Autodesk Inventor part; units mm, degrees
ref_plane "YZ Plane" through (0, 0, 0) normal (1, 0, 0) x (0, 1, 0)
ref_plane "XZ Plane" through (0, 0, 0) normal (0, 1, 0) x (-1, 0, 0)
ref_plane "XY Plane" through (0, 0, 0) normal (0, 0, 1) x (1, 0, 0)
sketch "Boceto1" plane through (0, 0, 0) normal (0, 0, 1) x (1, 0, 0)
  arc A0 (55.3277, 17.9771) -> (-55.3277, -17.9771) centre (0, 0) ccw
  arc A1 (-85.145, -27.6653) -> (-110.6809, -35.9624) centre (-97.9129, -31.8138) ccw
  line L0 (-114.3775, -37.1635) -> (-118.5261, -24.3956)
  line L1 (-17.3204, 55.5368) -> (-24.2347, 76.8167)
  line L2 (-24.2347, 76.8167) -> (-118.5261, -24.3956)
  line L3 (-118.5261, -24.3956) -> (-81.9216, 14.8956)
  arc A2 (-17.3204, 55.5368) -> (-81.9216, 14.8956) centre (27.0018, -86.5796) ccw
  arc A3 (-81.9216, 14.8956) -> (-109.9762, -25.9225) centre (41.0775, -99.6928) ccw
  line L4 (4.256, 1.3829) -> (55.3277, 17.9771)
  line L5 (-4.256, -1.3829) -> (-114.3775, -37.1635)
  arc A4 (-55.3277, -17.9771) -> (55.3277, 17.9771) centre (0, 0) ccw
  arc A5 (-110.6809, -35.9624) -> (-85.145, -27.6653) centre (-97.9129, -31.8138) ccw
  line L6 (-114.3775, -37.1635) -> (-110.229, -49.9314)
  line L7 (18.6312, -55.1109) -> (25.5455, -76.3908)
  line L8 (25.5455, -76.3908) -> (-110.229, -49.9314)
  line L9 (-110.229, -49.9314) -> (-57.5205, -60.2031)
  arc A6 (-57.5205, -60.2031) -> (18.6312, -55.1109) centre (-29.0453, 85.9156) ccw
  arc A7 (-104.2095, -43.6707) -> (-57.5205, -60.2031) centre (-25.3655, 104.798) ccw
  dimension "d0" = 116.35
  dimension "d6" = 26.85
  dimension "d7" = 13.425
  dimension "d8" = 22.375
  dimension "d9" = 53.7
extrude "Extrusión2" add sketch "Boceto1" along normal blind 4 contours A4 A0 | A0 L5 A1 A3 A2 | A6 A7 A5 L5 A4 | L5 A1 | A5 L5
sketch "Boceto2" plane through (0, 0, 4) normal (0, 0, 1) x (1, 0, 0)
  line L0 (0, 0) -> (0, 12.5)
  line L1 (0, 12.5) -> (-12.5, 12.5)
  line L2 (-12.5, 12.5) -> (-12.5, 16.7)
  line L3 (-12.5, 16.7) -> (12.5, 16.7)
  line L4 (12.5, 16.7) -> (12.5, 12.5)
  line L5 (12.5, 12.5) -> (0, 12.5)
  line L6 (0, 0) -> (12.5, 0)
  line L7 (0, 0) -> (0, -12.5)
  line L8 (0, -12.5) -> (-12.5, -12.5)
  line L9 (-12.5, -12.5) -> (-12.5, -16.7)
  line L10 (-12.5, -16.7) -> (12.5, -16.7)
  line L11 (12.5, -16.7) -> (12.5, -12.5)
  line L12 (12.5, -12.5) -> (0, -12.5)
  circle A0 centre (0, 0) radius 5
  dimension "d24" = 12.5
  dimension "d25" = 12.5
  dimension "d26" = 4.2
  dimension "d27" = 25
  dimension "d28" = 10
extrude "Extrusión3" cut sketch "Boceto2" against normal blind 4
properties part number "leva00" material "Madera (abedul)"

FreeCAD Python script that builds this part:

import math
import FreeCAD as App
import Part
import Sketcher
from FreeCAD import Vector
Q = App.Units.Quantity

doc = App.newDocument("Part")
body = doc.addObject("PartDesign::Body", "Body")

sketch1 = doc.addObject("Sketcher::SketchObject", "Sketch")
body.addObject(sketch1)
sketch1.AttachmentSupport = (doc.XY_Plane, [""])
sketch1.MapMode = "FlatFace"
sketch1.addGeometry(Part.ArcOfCircle(Part.Circle(Vector(0, 0, 0), Vector(0, 0, 1), 58), math.radians(-71), math.radians(107)), False)
sketch1.addGeometry(Part.ArcOfCircle(Part.Circle(Vector(27, -87, 0), Vector(0, 0, 1), 149), math.radians(107), math.radians(137)), False)
sketch1.addGeometry(Part.ArcOfCircle(Part.Circle(Vector(41, -100, 0), Vector(0, 0, 1), 168), math.radians(137.03), math.radians(153.97)), False)
sketch1.addGeometry(Part.ArcOfCircle(Part.Circle(Vector(-98, -32, 0), Vector(0, 0, 1), 13), math.radians(154), math.radians(198)), False)
sketch1.addGeometry(Part.ArcOfCircle(Part.Circle(Vector(-98, -32, 0), Vector(0, 0, 1), 13), math.radians(-162), math.radians(-118)), False)
sketch1.addGeometry(Part.ArcOfCircle(Part.Circle(Vector(-25, 105, 0), Vector(0, 0, 1), 168), math.radians(-117.97), math.radians(-101.03)), False)
sketch1.addGeometry(Part.ArcOfCircle(Part.Circle(Vector(-29, 86, 0), Vector(0, 0, 1), 149), math.radians(-101), math.radians(-71)), False)
sketch1.addConstraint(Sketcher.Constraint("Tangent", 0, 2, 1, 1))
sketch1.addConstraint(Sketcher.Constraint("Tangent", 1, 2, 2, 1))
sketch1.addConstraint(Sketcher.Constraint("Tangent", 2, 2, 3, 1))
sketch1.addConstraint(Sketcher.Constraint("Tangent", 3, 2, 4, 1))
sketch1.addConstraint(Sketcher.Constraint("Tangent", 4, 2, 5, 1))
sketch1.addConstraint(Sketcher.Constraint("Tangent", 5, 2, 6, 1))
sketch1.addConstraint(Sketcher.Constraint("Tangent", 6, 2, 0, 1))
sketch1.addConstraint(Sketcher.Constraint("Coincident", 0, 3, -1, 1))
sketch1.addConstraint(Sketcher.Constraint("Equal", 3, 4))
sketch1.addConstraint(Sketcher.Constraint("Equal", 1, 6))
sketch1.addConstraint(Sketcher.Constraint("Radius", 0, Q("58.175 mm")))
sketch1.addConstraint(Sketcher.Constraint("Radius", 3, Q("13.425 mm")))
sketch1.addConstraint(Sketcher.Constraint("Radius", 2, Q("168.105 mm")))
sketch1.addConstraint(Sketcher.Constraint("Radius", 1, Q("148.8675 mm")))
sketch1.addConstraint(Sketcher.Constraint("Radius", 5, Q("168.1018 mm")))
sketch1.addConstraint(Sketcher.Constraint("DistanceY", 1, 2, 6, 3, Q("71.02 mm")))
sketch1.addConstraint(Sketcher.Constraint("DistanceX", 3, 3, -1, 1, Q("97.913 mm")))
sketch1.addConstraint(Sketcher.Constraint("DistanceY", -1, 1, 5, 3, Q("104.795 mm")))
sketch1.addConstraint(Sketcher.Constraint("DistanceY", 5, 2, -1, 1, Q("60.203 mm")))
sketch1.addConstraint(Sketcher.Constraint("DistanceX", 3, 2, 3, 3, Q("12.768 mm")))
pad1 = doc.addObject("PartDesign::Pad", "Pad")
body.addObject(pad1)
pad1.Profile = sketch1
pad1.Length = 4

sketch2 = doc.addObject("Sketcher::SketchObject", "Sketch001")
body.addObject(sketch2)
sketch2.AttachmentSupport = (doc.XY_Plane, [""])
sketch2.MapMode = "FlatFace"
sketch2.AttachmentOffset = App.Placement(Vector(0, 0, 4), App.Rotation())
sketch2.addGeometry(Part.Circle(Vector(0, 0, 0), Vector(0, 0, 1), 5), False)
sketch2.addGeometry(Part.LineSegment(Vector(-12.5, 12.5, 0), Vector(12.5, 12.5, 0)), False)
sketch2.addGeometry(Part.LineSegment(Vector(12.5, 12.5, 0), Vector(12.5, 16.7, 0)), False)
sketch2.addGeometry(Part.LineSegment(Vector(12.5, 16.7, 0), Vector(-12.5, 16.7, 0)), False)
sketch2.addGeometry(Part.LineSegment(Vector(-12.5, 16.7, 0), Vector(-12.5, 12.5, 0)), False)
sketch2.addGeometry(Part.LineSegment(Vector(12.5, -12.5, 0), Vector(-12.5, -12.5, 0)), False)
sketch2.addGeometry(Part.LineSegment(Vector(-12.5, -12.5, 0), Vector(-12.5, -16.7, 0)), False)
sketch2.addGeometry(Part.LineSegment(Vector(-12.5, -16.7, 0), Vector(12.5, -16.7, 0)), False)
sketch2.addGeometry(Part.LineSegment(Vector(12.5, -16.7, 0), Vector(12.5, -12.5, 0)), False)
sketch2.addConstraint(Sketcher.Constraint("Coincident", 1, 2, 2, 1))
sketch2.addConstraint(Sketcher.Constraint("Coincident", 2, 2, 3, 1))
sketch2.addConstraint(Sketcher.Constraint("Coincident", 3, 2, 4, 1))
sketch2.addConstraint(Sketcher.Constraint("Coincident", 4, 2, 1, 1))
sketch2.addConstraint(Sketcher.Constraint("Coincident", 5, 2, 6, 1))
sketch2.addConstraint(Sketcher.Constraint("Coincident", 6, 2, 7, 1))
sketch2.addConstraint(Sketcher.Constraint("Coincident", 7, 2, 8, 1))
sketch2.addConstraint(Sketcher.Constraint("Coincident", 8, 2, 5, 1))
sketch2.addConstraint(Sketcher.Constraint("Horizontal", 1))
sketch2.addConstraint(Sketcher.Constraint("Vertical", 2))
sketch2.addConstraint(Sketcher.Constraint("Horizontal", 3))
sketch2.addConstraint(Sketcher.Constraint("Vertical", 4))
sketch2.addConstraint(Sketcher.Constraint("Horizontal", 5))
sketch2.addConstraint(Sketcher.Constraint("Vertical", 6))
sketch2.addConstraint(Sketcher.Constraint("Horizontal", 7))
sketch2.addConstraint(Sketcher.Constraint("Vertical", 8))
sketch2.addConstraint(Sketcher.Constraint("Coincident", 0, 3, -1, 1))
sketch2.addConstraint(Sketcher.Constraint("Symmetric", 1, 2, 5, 2, -1, 1))
sketch2.addConstraint(Sketcher.Constraint("Symmetric", 3, 2, 7, 2, -1, 1))
sketch2.addConstraint(Sketcher.Constraint("Vertical", 4, 2, 5, 2))
sketch2.addConstraint(Sketcher.Constraint("Diameter", 0, Q("10 mm")))
sketch2.addConstraint(Sketcher.Constraint("DistanceX", 1, 1, 1, 2, Q("25 mm")))
sketch2.addConstraint(Sketcher.Constraint("DistanceY", 2, 1, 2, 2, Q("4.2 mm")))
sketch2.addConstraint(Sketcher.Constraint("DistanceY", 5, 2, 4, 2, Q("25 mm")))
pocket1 = doc.addObject("PartDesign::Pocket", "Pocket")
body.addObject(pocket1)
pocket1.Profile = sketch2
pocket1.Length = 4

doc.recompute()
